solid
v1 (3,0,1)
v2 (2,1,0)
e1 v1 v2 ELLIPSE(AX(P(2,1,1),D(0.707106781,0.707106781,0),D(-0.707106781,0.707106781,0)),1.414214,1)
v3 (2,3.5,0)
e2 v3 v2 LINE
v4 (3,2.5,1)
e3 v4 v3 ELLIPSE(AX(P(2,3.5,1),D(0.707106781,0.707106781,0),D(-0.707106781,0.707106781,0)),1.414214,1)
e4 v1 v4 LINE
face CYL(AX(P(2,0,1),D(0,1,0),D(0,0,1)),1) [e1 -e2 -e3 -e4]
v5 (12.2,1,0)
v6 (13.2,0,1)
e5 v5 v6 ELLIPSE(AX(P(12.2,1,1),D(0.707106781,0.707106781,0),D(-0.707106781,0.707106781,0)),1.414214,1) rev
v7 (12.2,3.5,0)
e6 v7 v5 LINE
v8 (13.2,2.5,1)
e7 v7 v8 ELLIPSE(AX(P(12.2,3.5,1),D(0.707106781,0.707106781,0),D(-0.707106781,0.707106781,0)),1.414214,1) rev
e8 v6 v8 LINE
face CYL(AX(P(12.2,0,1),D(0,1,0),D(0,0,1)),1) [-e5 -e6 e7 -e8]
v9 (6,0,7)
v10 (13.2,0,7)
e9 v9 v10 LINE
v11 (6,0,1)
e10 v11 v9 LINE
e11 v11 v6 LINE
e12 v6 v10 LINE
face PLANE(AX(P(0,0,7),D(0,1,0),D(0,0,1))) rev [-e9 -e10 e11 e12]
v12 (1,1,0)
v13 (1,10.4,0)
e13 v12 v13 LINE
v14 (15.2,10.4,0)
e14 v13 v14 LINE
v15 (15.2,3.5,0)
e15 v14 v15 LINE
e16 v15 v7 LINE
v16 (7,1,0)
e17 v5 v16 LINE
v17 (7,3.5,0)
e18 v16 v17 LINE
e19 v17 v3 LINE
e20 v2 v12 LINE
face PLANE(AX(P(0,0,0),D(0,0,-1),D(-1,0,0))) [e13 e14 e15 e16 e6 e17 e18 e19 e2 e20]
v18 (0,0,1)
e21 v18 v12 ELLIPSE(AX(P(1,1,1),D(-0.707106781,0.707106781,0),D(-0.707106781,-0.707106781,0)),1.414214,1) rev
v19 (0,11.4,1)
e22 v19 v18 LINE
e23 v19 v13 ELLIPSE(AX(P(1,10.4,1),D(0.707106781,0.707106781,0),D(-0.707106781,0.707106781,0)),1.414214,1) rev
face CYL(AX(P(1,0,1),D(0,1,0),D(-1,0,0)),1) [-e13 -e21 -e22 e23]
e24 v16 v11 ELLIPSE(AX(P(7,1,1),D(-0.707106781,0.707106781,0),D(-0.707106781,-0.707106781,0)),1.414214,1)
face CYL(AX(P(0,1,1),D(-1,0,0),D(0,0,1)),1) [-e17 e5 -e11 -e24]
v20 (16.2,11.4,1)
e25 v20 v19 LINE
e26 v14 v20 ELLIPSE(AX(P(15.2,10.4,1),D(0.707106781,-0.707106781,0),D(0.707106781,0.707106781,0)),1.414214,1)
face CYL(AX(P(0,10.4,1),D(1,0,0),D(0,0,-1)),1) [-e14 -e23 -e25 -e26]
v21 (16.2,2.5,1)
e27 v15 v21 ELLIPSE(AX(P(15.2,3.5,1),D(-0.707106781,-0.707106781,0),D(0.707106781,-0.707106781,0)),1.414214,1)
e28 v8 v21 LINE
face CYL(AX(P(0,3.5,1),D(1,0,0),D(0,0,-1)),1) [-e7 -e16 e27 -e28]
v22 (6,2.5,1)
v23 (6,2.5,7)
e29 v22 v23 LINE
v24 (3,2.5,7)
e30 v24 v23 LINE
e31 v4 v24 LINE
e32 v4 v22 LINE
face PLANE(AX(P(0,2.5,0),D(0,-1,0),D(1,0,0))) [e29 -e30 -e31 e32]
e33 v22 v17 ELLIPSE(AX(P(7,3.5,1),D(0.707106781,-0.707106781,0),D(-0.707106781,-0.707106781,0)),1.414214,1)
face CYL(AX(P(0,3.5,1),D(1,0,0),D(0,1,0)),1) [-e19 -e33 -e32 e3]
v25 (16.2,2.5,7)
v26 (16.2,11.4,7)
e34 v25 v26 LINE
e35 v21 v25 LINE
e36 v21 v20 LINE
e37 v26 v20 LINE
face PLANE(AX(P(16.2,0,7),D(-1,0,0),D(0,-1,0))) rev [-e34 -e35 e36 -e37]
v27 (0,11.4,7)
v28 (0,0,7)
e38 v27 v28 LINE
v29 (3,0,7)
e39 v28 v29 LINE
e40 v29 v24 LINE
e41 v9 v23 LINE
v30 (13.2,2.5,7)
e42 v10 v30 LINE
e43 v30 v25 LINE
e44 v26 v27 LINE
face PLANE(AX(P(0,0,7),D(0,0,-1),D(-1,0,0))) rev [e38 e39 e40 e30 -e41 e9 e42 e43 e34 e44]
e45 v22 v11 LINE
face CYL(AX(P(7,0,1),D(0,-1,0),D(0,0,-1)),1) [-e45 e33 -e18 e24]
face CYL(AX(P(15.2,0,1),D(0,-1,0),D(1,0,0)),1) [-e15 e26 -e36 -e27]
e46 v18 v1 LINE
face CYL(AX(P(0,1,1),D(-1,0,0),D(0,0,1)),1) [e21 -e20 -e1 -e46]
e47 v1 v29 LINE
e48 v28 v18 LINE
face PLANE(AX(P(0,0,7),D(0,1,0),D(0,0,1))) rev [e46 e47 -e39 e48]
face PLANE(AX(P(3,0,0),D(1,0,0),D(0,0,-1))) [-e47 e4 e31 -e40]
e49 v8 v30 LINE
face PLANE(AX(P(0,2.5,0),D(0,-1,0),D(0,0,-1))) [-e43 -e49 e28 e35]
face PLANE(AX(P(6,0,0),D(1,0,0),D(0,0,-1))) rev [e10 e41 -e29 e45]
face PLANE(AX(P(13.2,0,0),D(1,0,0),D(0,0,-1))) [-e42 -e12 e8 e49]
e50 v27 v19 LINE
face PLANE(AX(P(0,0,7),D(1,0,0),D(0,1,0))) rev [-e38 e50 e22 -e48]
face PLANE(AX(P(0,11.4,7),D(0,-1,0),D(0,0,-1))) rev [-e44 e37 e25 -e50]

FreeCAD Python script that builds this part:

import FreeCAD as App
import Part
import Sketcher
Q = App.Units.Quantity


def edges_at(feature, points):
    """Names of the edges that pass closest to the given points."""
    edges = feature.Shape.Edges
    near = lambda p: min(range(len(edges)), key=lambda i: edges[i].distToShape(Part.Vertex(*p))[0])
    return sorted({f"Edge{near(p) + 1}" for p in points})


def add_polygon(sketch, points):
    """Adds a closed chain of lines whose ends are joined by coincident constraints."""
    first, n = sketch.GeometryCount, len(points)
    for a, b in zip(points, points[1:] + points[:1]):
        sketch.addGeometry(Part.LineSegment(App.Vector(*a, 0), App.Vector(*b, 0)), False)
    for i in range(n):
        sketch.addConstraint(Sketcher.Constraint("Coincident", first + i, 2, first + (i + 1) % n, 1))

doc = App.newDocument("Part")
body = doc.addObject("PartDesign::Body", "Body")

# Sketch on XY plane
sketch1 = body.newObject("Sketcher::SketchObject", "Sketch")
sketch1.AttachmentSupport = (doc.getObject("XY_Plane"), [""])
sketch1.MapMode = "FlatFace"
add_polygon(sketch1, [(0, 11), (0, 0), (16, 0), (16, 11)])  # lines 0-3
sketch1.addConstraint([
    Sketcher.Constraint("Vertical", 0),
    Sketcher.Constraint("Horizontal", 1),
    Sketcher.Constraint("Vertical", 2),
    Sketcher.Constraint("Horizontal", 3),
    Sketcher.Constraint("Coincident", 0, 2, -1, 1),
    Sketcher.Constraint("DistanceX", 1, 1, 1, 2, Q("16.2 mm")),
    Sketcher.Constraint("DistanceY", 0, 2, 0, 1, Q("11.4 mm")),
])
pad1 = body.newObject("PartDesign::Pad", "Pad")
pad1.Profile = sketch1
pad1.Length = 7

# Sketch on XY plane
sketch2 = body.newObject("Sketcher::SketchObject", "Sketch001")
sketch2.AttachmentSupport = (doc.getObject("XY_Plane"), [""])
sketch2.MapMode = "FlatFace"
sketch2.AttachmentOffset = App.Placement(App.Vector(0, 0, 7), App.Rotation())
add_polygon(sketch2, [(3, 2.5), (3, 0), (6, 0), (6, 2.5)])  # lines 0-3
add_polygon(sketch2, [(13.2, 2.5), (13.2, 0), (16.2, 0), (16.2, 2.5)])  # lines 4-7
sketch2.addConstraint([
    Sketcher.Constraint("Vertical", 0),
    Sketcher.Constraint("Horizontal", 1),
    Sketcher.Constraint("Vertical", 2),
    Sketcher.Constraint("Horizontal", 3),
    Sketcher.Constraint("Vertical", 4),
    Sketcher.Constraint("Horizontal", 5),
    Sketcher.Constraint("Vertical", 6),
    Sketcher.Constraint("Horizontal", 7),
    Sketcher.Constraint("PointOnObject", 0, 2, -1),
    Sketcher.Constraint("PointOnObject", 4, 2, -1),
    Sketcher.Constraint("Horizontal", 3, 2, 6, 2),
    Sketcher.Constraint("Equal", 3, 5),
    Sketcher.Constraint("DistanceX", 1, 1, 1, 2, Q("3 mm")),
    Sketcher.Constraint("DistanceY", 0, 2, 0, 1, Q("2.5 mm")),
    Sketcher.Constraint("DistanceX", -1, 1, 0, 2, Q("3 mm")),
    Sketcher.Constraint("DistanceX", -1, 1, 4, 2, Q("13.2 mm")),
])
pocket1 = body.newObject("PartDesign::Pocket", "Pocket")
pocket1.Profile = sketch2
pocket1.Type = "ThroughAll"
doc.recompute()

fillet = body.newObject("PartDesign::Fillet", "Fillet")
fillet.Base = (pocket1, edges_at(pocket1, [
    (16.2, 6.95, 0),
    (9.6, 0, 0),
    (6, 1.25, 0),
    (3, 1.25, 0),
    (4.5, 2.5, 0),
    (14.7, 2.5, 0),
    (13.2, 1.25, 0),
    (8.1, 11.4, 0),
    (1.5, 0, 0),
    (0, 5.7, 0),
]))
fillet.Radius = 1

doc.recompute()
